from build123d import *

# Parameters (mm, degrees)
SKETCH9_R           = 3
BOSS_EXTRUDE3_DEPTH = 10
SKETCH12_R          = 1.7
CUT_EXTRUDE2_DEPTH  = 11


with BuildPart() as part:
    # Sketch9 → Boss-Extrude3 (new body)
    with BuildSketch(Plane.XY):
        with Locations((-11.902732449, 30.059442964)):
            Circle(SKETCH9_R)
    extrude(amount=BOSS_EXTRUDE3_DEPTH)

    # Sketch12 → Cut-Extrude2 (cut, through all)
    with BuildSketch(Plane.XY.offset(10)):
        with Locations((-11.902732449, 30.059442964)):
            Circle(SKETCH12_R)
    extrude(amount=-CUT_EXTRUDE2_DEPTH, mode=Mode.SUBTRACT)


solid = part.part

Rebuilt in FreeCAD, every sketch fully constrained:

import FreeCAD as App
import Part
import Sketcher

V = App.Vector

doc = App.newDocument("Part")
params = doc.addObject("Spreadsheet::Sheet", "Params")
for row, (alias, value) in enumerate([
    ("sketch1_diameter", "6 mm"),
    ("pad1_length", "10 mm"),
    ("sketch2_diameter", "3.4 mm"),
], start=1):
    params.set(f"A{row}", alias)
    params.set(f"B{row}", "=" + value)
    params.setAlias(f"B{row}", alias)

body = doc.addObject("PartDesign::Body", "Body")

# Sketch on XY plane
sketch1 = body.newObject("Sketcher::SketchObject", "Sketch")
sketch1.AttachmentSupport = (doc.getObject("XY_Plane"), [""])
sketch1.MapMode = "FlatFace"
sketch1.addGeometry(Part.Circle(V(-11.9, 30.1, 0), V(0, 0, 1), 3), False)
sketch1.addConstraint([
    Sketcher.Constraint("Diameter", 0, 6.0),
    Sketcher.Constraint("DistanceX", 0, 3, -1, 1, 11.902732),
    Sketcher.Constraint("DistanceY", -1, 1, 0, 3, 30.059443),
])
sketch1.setExpression("Constraints[0]", "Params.sketch1_diameter")
pad1 = body.newObject("PartDesign::Pad", "Pad")
pad1.Profile = sketch1
pad1.setExpression("Length", "Params.pad1_length")

# Sketch on XY plane
sketch2 = body.newObject("Sketcher::SketchObject", "Sketch001")
sketch2.AttachmentSupport = (doc.getObject("XY_Plane"), [""])
sketch2.MapMode = "FlatFace"
sketch2.AttachmentOffset = App.Placement(V(0, 0, 10), App.Rotation())
sketch2.addGeometry(Part.Circle(V(-11.9, 30.1, 0), V(0, 0, 1), 1.7), False)
sketch2.addConstraint([
    Sketcher.Constraint("Diameter", 0, 3.4),
    Sketcher.Constraint("DistanceX", 0, 3, -1, 1, 11.902732),
    Sketcher.Constraint("DistanceY", -1, 1, 0, 3, 30.059443),
])
sketch2.setExpression("Constraints[0]", "Params.sketch2_diameter")
pocket1 = body.newObject("PartDesign::Pocket", "Pocket")
pocket1.Profile = sketch2
pocket1.Type = "ThroughAll"

doc.recompute()
